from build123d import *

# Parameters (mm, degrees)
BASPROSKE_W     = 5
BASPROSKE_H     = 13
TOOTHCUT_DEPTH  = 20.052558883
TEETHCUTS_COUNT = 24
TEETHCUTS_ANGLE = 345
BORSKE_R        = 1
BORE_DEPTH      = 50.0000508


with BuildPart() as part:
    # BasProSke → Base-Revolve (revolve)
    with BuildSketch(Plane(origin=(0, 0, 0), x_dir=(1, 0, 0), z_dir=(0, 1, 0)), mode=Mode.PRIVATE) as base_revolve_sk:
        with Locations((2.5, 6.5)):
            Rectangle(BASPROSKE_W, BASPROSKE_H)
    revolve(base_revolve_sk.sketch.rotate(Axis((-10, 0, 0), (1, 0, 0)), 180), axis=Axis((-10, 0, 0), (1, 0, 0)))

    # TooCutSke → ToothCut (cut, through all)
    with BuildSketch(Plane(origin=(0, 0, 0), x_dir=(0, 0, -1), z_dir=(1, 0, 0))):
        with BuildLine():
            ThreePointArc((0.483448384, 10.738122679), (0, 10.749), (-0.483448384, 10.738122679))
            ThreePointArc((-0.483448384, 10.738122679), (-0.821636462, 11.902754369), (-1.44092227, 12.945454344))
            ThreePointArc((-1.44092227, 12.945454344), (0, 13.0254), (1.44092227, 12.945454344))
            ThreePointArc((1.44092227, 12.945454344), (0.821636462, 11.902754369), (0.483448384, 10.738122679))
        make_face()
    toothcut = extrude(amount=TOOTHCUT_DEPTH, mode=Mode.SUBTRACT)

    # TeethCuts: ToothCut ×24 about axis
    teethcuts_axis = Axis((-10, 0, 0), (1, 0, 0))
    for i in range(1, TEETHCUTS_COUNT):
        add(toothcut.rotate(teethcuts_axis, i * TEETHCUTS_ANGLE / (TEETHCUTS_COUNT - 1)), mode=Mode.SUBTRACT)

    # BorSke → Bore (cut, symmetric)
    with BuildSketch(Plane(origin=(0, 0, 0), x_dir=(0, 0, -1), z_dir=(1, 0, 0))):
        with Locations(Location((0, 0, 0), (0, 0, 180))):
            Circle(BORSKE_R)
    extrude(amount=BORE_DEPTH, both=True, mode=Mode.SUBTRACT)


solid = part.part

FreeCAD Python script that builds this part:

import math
import FreeCAD as App
import Part
import Sketcher
from FreeCAD import Vector
Q = App.Units.Quantity

doc = App.newDocument("Part")
body = doc.addObject("PartDesign::Body", "Body")

sketch1 = body.newObject("Sketcher::SketchObject", "Sketch")
sketch1.AttachmentSupport = (doc.getObject("XZ_Plane"), [""])
sketch1.MapMode = "FlatFace"
sketch1.addGeometry([
    Part.LineSegment(Vector(0, -13, 0), Vector(0, 0, 0)),
    Part.LineSegment(Vector(0, 0, 0), Vector(5, 0, 0)),
    Part.LineSegment(Vector(5, 0, 0), Vector(5, -13, 0)),
    Part.LineSegment(Vector(5, -13, 0), Vector(0, -13, 0)),
], False)
sketch1.addConstraint([
    Sketcher.Constraint("Coincident", 0, 2, 1, 1),
    Sketcher.Constraint("Coincident", 1, 2, 2, 1),
    Sketcher.Constraint("Coincident", 2, 2, 3, 1),
    Sketcher.Constraint("Coincident", 3, 2, 0, 1),
    Sketcher.Constraint("Vertical", 0),
    Sketcher.Constraint("Horizontal", 1),
    Sketcher.Constraint("Vertical", 2),
    Sketcher.Constraint("Horizontal", 3),
    Sketcher.Constraint("Coincident", 0, 2, -1, 1),
    Sketcher.Constraint("DistanceX", 1, 1, 1, 2, Q("5 mm")),
    Sketcher.Constraint("DistanceY", 0, 1, 0, 2, Q("13 mm")),
])
revolution = body.newObject("PartDesign::Revolution", "Revolution")
revolution.Profile = sketch1
revolution.ReferenceAxis = (sketch1, ["H_Axis"])
revolution.Angle = 360

sketch2 = body.newObject("Sketcher::SketchObject", "Sketch001")
sketch2.AttachmentSupport = (doc.getObject("YZ_Plane"), [""])
sketch2.MapMode = "FlatFace"
sketch2.addGeometry([
    Part.ArcOfCircle(Part.Circle(Vector(0, 0, 0), Vector(0, 0, 1), 10.7), math.radians(-2.58), math.radians(2.58)),
    Part.ArcOfCircle(Part.Circle(Vector(10, -5.2, 0), Vector(0, 0, 1), 4.8), math.radians(52), math.radians(81)),
    Part.ArcOfCircle(Part.Circle(Vector(0, 0, 0), Vector(0, 0, 1), 13), math.radians(-6.35), math.radians(6.35)),
    Part.ArcOfCircle(Part.Circle(Vector(10, 5.2, 0), Vector(0, 0, 1), 4.8), math.radians(-81), math.radians(-52)),
], False)
sketch2.addConstraint([
    Sketcher.Constraint("Coincident", 0, 1, 1, 2),
    Sketcher.Constraint("Coincident", 1, 1, 2, 1),
    Sketcher.Constraint("Coincident", 2, 2, 3, 2),
    Sketcher.Constraint("Coincident", 3, 1, 0, 2),
    Sketcher.Constraint("Coincident", 0, 3, -1, 1),
    Sketcher.Constraint("Coincident", 2, 3, -1, 1),
    Sketcher.Constraint("Equal", 1, 3),
    Sketcher.Constraint("Symmetric", 1, 3, 3, 3, -1),
    Sketcher.Constraint("Radius", 1, Q("4.8 mm")),
    Sketcher.Constraint("Radius", 0, Q("10.749 mm")),
    Sketcher.Constraint("Radius", 2, Q("13.0254 mm")),
    Sketcher.Constraint("DistanceY", 1, 3, -1, 1, Q("5.225202 mm")),
    Sketcher.Constraint("DistanceX", -1, 1, 1, 3, Q("9.992621 mm")),
])
pocket1 = body.newObject("PartDesign::Pocket", "Pocket")
pocket1.Profile = sketch2
pocket1.Type = "ThroughAll"
pocket1.Reversed = True
doc.recompute()

polarpattern = body.newObject("PartDesign::PolarPattern", "PolarPattern")
polarpattern.Originals = [pocket1]
polarpattern.Axis = (doc.getObject("X_Axis"), [""])
polarpattern.Angle = 360
polarpattern.Occurrences = 24
body.Tip = polarpattern

sketch3 = body.newObject("Sketcher::SketchObject", "Sketch002")
sketch3.AttachmentSupport = (doc.getObject("YZ_Plane"), [""])
sketch3.MapMode = "FlatFace"
sketch3.addGeometry(Part.Circle(Vector(0, 0, 0), Vector(0, 0, 1), 1), False)
sketch3.addConstraint([
    Sketcher.Constraint("Coincident", 0, 3, -1, 1),
    Sketcher.Constraint("Diameter", 0, Q("2 mm")),
])
pocket2 = body.newObject("PartDesign::Pocket", "Pocket001")
pocket2.Profile = sketch3
pocket2.Length = 100.000102
pocket2.Midplane = True

doc.recompute()
